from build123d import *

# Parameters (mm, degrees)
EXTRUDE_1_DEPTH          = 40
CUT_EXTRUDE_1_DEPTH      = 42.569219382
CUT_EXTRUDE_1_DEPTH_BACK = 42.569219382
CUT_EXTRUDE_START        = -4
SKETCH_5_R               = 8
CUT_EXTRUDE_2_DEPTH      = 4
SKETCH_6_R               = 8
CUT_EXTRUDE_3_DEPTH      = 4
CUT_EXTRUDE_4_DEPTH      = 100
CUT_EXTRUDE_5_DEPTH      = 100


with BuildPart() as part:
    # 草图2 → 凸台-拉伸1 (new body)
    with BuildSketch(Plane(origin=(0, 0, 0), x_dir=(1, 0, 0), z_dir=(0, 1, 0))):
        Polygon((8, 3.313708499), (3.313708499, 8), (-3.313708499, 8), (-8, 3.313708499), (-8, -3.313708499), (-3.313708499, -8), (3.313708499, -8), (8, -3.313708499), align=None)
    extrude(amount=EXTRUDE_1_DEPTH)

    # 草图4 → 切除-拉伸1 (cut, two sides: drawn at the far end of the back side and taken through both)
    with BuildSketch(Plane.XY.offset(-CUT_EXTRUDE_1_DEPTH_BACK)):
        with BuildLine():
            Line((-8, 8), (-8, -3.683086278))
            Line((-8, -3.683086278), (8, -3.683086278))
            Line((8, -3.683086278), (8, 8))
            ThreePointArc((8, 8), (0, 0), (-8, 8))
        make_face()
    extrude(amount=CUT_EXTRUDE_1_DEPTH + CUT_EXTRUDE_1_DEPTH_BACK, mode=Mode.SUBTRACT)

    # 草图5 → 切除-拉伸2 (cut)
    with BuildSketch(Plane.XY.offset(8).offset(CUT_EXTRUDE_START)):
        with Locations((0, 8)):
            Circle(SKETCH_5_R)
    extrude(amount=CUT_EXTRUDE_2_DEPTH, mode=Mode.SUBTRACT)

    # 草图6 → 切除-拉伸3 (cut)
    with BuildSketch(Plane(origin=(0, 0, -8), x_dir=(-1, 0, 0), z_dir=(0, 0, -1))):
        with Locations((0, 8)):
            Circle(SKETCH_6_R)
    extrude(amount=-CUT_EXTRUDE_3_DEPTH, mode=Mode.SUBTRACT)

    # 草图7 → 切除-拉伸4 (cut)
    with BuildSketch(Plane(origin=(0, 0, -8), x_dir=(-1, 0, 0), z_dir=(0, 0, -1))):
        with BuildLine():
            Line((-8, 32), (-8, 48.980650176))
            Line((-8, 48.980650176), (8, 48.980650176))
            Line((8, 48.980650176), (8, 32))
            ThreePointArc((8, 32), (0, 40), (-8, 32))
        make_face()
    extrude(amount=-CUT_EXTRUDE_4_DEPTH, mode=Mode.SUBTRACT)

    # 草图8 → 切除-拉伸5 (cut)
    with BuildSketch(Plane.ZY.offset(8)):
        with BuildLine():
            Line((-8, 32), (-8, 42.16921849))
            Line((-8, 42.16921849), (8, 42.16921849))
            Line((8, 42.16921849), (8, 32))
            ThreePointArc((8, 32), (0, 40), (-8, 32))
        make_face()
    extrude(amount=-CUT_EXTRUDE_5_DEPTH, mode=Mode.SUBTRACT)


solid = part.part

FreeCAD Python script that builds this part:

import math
import FreeCAD as App
import Part
import Sketcher
from FreeCAD import Vector
Q = App.Units.Quantity


def add_polygon(sketch, points):
    """Adds a closed chain of lines whose ends are joined by coincident constraints."""
    first, n = sketch.GeometryCount, len(points)
    for a, b in zip(points, points[1:] + points[:1]):
        sketch.addGeometry(Part.LineSegment(App.Vector(*a, 0), App.Vector(*b, 0)), False)
    for i in range(n):
        sketch.addConstraint(Sketcher.Constraint("Coincident", first + i, 2, first + (i + 1) % n, 1))

doc = App.newDocument("Part")
body = doc.addObject("PartDesign::Body", "Body")

# Sketch on XZ plane
sketch1 = body.newObject("Sketcher::SketchObject", "Sketch")
sketch1.AttachmentSupport = (doc.getObject("XZ_Plane"), [""])
sketch1.MapMode = "FlatFace"
add_polygon(sketch1, [(8, -3), (3, -8), (-3, -8), (-8, -3), (-8, 3), (-3, 8), (3, 8), (8, 3)])  # lines 0-7
sketch1.addConstraint(Sketcher.Constraint("Horizontal", 1))
sketch1.addConstraint(Sketcher.Constraint("Vertical", 3))
sketch1.addConstraint(Sketcher.Constraint("Horizontal", 5))
sketch1.addConstraint(Sketcher.Constraint("Vertical", 7))
sketch1.addConstraint(Sketcher.Constraint("Symmetric", 0, 2, 4, 2, -1, 1))
sketch1.addConstraint(Sketcher.Constraint("Symmetric", 2, 2, 6, 2, -1, 1))
sketch1.addConstraint(Sketcher.Constraint("Perpendicular", 0, 2))
sketch1.addConstraint(Sketcher.Constraint("Perpendicular", 2, 4))
sketch1.addConstraint(Sketcher.Constraint("Perpendicular", 4, 6))
sketch1.addConstraint(Sketcher.Constraint("Horizontal", 3, 2, 6, 2))
sketch1.addConstraint(Sketcher.Constraint("Vertical", 1, 2, 4, 2))
sketch1.addConstraint(Sketcher.Constraint("Equal", 5, 3))
sketch1.addConstraint(Sketcher.Constraint("DistanceY", 0, 2, -1, 1, Q("8 mm")))
sketch1.addConstraint(Sketcher.Constraint("DistanceX", 1, 2, 1, 1, Q("6.627417 mm")))
pad1 = body.newObject("PartDesign::Pad", "Pad")
pad1.Profile = sketch1
pad1.Length = 40
pad1.Reversed = True

# Sketch on XY plane
sketch2 = body.newObject("Sketcher::SketchObject", "Sketch001")
sketch2.AttachmentSupport = (doc.getObject("XY_Plane"), [""])
sketch2.MapMode = "FlatFace"
sketch2.addGeometry(Part.LineSegment(Vector(-8, 8, 0), Vector(-8, -4, 0)), False)
sketch2.addGeometry(Part.LineSegment(Vector(-8, -4, 0), Vector(8, -4, 0)), False)
sketch2.addGeometry(Part.LineSegment(Vector(8, -4, 0), Vector(8, 8, 0)), False)
sketch2.addGeometry(Part.ArcOfCircle(Part.Circle(Vector(0, 8, 0), Vector(0, 0, 1), 8), math.radians(180), math.radians(360)), False)
sketch2.addConstraint(Sketcher.Constraint("Coincident", 0, 2, 1, 1))
sketch2.addConstraint(Sketcher.Constraint("Coincident", 1, 2, 2, 1))
sketch2.addConstraint(Sketcher.Constraint("Tangent", 2, 2, 3, 2))
sketch2.addConstraint(Sketcher.Constraint("Tangent", 3, 1, 0, 1))
sketch2.addConstraint(Sketcher.Constraint("Vertical", 0))
sketch2.addConstraint(Sketcher.Constraint("Horizontal", 1))
sketch2.addConstraint(Sketcher.Constraint("Vertical", 2))
sketch2.addConstraint(Sketcher.Constraint("PointOnObject", 3, 3, -2))
sketch2.addConstraint(Sketcher.Constraint("Radius", 3, Q("8 mm")))
sketch2.addConstraint(Sketcher.Constraint("DistanceY", -1, 1, 3, 3, Q("8 mm")))
sketch2.addConstraint(Sketcher.Constraint("DistanceY", 0, 2, 0, 1, Q("11.683086 mm")))
pocket1 = body.newObject("PartDesign::Pocket", "Pocket")
pocket1.Profile = sketch2
pocket1.Type = "ThroughAll"
pocket1.Midplane = True

# Sketch on XY plane
sketch3 = body.newObject("Sketcher::SketchObject", "Sketch002")
sketch3.AttachmentSupport = (doc.getObject("XY_Plane"), [""])
sketch3.MapMode = "FlatFace"
sketch3.AttachmentOffset = App.Placement(Vector(0, 0, 4), App.Rotation())
sketch3.addGeometry(Part.Circle(Vector(0, 8, 0), Vector(0, 0, 1), 8), False)
sketch3.addConstraint(Sketcher.Constraint("PointOnObject", 0, 3, -2))
sketch3.addConstraint(Sketcher.Constraint("Diameter", 0, Q("16 mm")))
sketch3.addConstraint(Sketcher.Constraint("DistanceY", -1, 1, 0, 3, Q("8 mm")))
pocket2 = body.newObject("PartDesign::Pocket", "Pocket001")
pocket2.Profile = sketch3
pocket2.Length = 4
pocket2.Reversed = True

# Sketch on XY plane
sketch4 = body.newObject("Sketcher::SketchObject", "Sketch003")
sketch4.AttachmentSupport = (doc.getObject("XY_Plane"), [""])
sketch4.MapMode = "FlatFace"
sketch4.AttachmentOffset = App.Placement(Vector(0, 0, -8), App.Rotation())
sketch4.addGeometry(Part.Circle(Vector(0, 8, 0), Vector(0, 0, 1), 8), False)
sketch4.addConstraint(Sketcher.Constraint("PointOnObject", 0, 3, -2))
sketch4.addConstraint(Sketcher.Constraint("Diameter", 0, Q("16 mm")))
sketch4.addConstraint(Sketcher.Constraint("DistanceY", -1, 1, 0, 3, Q("8 mm")))
pocket3 = body.newObject("PartDesign::Pocket", "Pocket002")
pocket3.Profile = sketch4
pocket3.Length = 4
pocket3.Reversed = True

# Sketch on XY plane
sketch5 = body.newObject("Sketcher::SketchObject", "Sketch004")
sketch5.AttachmentSupport = (doc.getObject("XY_Plane"), [""])
sketch5.MapMode = "FlatFace"
sketch5.AttachmentOffset = App.Placement(Vector(0, 0, -8), App.Rotation())
sketch5.addGeometry(Part.LineSegment(Vector(8, 49, 0), Vector(8, 32, 0)), False)
sketch5.addGeometry(Part.ArcOfCircle(Part.Circle(Vector(0, 32, 0), Vector(0, 0, 1), 8), math.radians(0), math.radians(180)), False)
sketch5.addGeometry(Part.LineSegment(Vector(-8, 32, 0), Vector(-8, 49, 0)), False)
sketch5.addGeometry(Part.LineSegment(Vector(-8, 49, 0), Vector(8, 49, 0)), False)
sketch5.addConstraint(Sketcher.Constraint("Tangent", 0, 2, 1, 1))
sketch5.addConstraint(Sketcher.Constraint("Tangent", 1, 2, 2, 1))
sketch5.addConstraint(Sketcher.Constraint("Coincident", 2, 2, 3, 1))
sketch5.addConstraint(Sketcher.Constraint("Coincident", 3, 2, 0, 1))
sketch5.addConstraint(Sketcher.Constraint("Vertical", 0))
sketch5.addConstraint(Sketcher.Constraint("Vertical", 2))
sketch5.addConstraint(Sketcher.Constraint("Horizontal", 3))
sketch5.addConstraint(Sketcher.Constraint("PointOnObject", 1, 3, -2))
sketch5.addConstraint(Sketcher.Constraint("Radius", 1, Q("8 mm")))
sketch5.addConstraint(Sketcher.Constraint("DistanceY", -1, 1, 1, 3, Q("32 mm")))
sketch5.addConstraint(Sketcher.Constraint("DistanceY", 0, 2, 0, 1, Q("16.98065 mm")))
pocket4 = body.newObject("PartDesign::Pocket", "Pocket003")
pocket4.Profile = sketch5
pocket4.Length = 100
pocket4.Reversed = True

# Sketch on YZ plane
sketch6 = body.newObject("Sketcher::SketchObject", "Sketch005")
sketch6.AttachmentSupport = (doc.getObject("YZ_Plane"), [""])
sketch6.MapMode = "FlatFace"
sketch6.AttachmentOffset = App.Placement(Vector(0, 0, -8), App.Rotation())
sketch6.addGeometry(Part.LineSegment(Vector(42, -8, 0), Vector(32, -8, 0)), False)
sketch6.addGeometry(Part.ArcOfCircle(Part.Circle(Vector(32, 0, 0), Vector(0, 0, 1), 8), math.radians(-90), math.radians(90)), False)
sketch6.addGeometry(Part.LineSegment(Vector(32, 8, 0), Vector(42, 8, 0)), False)
sketch6.addGeometry(Part.LineSegment(Vector(42, 8, 0), Vector(42, -8, 0)), False)
sketch6.addConstraint(Sketcher.Constraint("Tangent", 0, 2, 1, 1))
sketch6.addConstraint(Sketcher.Constraint("Tangent", 1, 2, 2, 1))
sketch6.addConstraint(Sketcher.Constraint("Coincident", 2, 2, 3, 1))
sketch6.addConstraint(Sketcher.Constraint("Coincident", 3, 2, 0, 1))
sketch6.addConstraint(Sketcher.Constraint("Horizontal", 0))
sketch6.addConstraint(Sketcher.Constraint("Horizontal", 2))
sketch6.addConstraint(Sketcher.Constraint("Vertical", 3))
sketch6.addConstraint(Sketcher.Constraint("PointOnObject", 1, 3, -1))
sketch6.addConstraint(Sketcher.Constraint("Radius", 1, Q("8 mm")))
sketch6.addConstraint(Sketcher.Constraint("DistanceX", -1, 1, 1, 3, Q("32 mm")))
sketch6.addConstraint(Sketcher.Constraint("DistanceX", 0, 2, 0, 1, Q("10.169218 mm")))
pocket5 = body.newObject("PartDesign::Pocket", "Pocket004")
pocket5.Profile = sketch6
pocket5.Length = 100
pocket5.Reversed = True

doc.recompute()
